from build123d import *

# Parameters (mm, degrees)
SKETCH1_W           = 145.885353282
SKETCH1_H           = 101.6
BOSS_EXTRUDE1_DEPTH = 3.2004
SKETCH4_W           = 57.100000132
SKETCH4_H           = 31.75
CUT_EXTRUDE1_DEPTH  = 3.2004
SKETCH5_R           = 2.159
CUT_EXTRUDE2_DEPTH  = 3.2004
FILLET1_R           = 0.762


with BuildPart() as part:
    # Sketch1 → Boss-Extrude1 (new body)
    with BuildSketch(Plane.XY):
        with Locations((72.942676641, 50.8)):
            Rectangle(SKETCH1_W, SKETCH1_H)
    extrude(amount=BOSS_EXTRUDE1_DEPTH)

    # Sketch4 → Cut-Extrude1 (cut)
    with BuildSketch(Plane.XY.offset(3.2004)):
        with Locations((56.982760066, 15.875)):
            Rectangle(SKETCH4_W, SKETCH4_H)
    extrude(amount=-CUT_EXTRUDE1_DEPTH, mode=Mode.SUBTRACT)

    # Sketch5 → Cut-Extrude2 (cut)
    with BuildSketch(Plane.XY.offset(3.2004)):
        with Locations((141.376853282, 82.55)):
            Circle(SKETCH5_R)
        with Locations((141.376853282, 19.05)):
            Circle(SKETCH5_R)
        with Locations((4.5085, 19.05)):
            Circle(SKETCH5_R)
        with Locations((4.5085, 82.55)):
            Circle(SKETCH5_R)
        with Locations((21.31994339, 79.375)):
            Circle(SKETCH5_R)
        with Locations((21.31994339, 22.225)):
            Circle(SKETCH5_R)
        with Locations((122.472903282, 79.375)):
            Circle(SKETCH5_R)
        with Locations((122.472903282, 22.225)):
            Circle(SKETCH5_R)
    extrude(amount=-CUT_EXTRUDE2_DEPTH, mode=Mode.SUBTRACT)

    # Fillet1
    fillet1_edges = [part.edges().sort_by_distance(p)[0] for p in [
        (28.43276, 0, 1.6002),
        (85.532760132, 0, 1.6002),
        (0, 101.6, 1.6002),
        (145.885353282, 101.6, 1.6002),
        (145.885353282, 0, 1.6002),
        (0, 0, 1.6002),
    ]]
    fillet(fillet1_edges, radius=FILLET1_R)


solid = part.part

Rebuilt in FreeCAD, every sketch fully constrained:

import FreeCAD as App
import Part
import Sketcher

V = App.Vector
Q = App.Units.Quantity


def edges_at(feature, points):
    """Names of the edges that pass closest to the given points."""
    edges = feature.Shape.Edges
    near = lambda p: min(range(len(edges)), key=lambda i: edges[i].distToShape(Part.Vertex(*p))[0])
    return sorted({f"Edge{near(p) + 1}" for p in points})

doc = App.newDocument("Part")
body = doc.addObject("PartDesign::Body", "Body")

# Sketch on XY plane
sketch1 = body.newObject("Sketcher::SketchObject", "Sketch")
sketch1.AttachmentSupport = (doc.getObject("XY_Plane"), [""])
sketch1.MapMode = "FlatFace"
sketch1.addGeometry(Part.LineSegment(V(0, 102, 0), V(0, 0, 0)), False)
sketch1.addGeometry(Part.LineSegment(V(0, 0, 0), V(146, 0, 0)), False)
sketch1.addGeometry(Part.LineSegment(V(146, 0, 0), V(146, 102, 0)), False)
sketch1.addGeometry(Part.LineSegment(V(146, 102, 0), V(0, 102, 0)), False)
sketch1.addConstraint(Sketcher.Constraint("Coincident", 0, 2, 1, 1))
sketch1.addConstraint(Sketcher.Constraint("Coincident", 1, 2, 2, 1))
sketch1.addConstraint(Sketcher.Constraint("Coincident", 2, 2, 3, 1))
sketch1.addConstraint(Sketcher.Constraint("Coincident", 3, 2, 0, 1))
sketch1.addConstraint(Sketcher.Constraint("Vertical", 0))
sketch1.addConstraint(Sketcher.Constraint("Horizontal", 1))
sketch1.addConstraint(Sketcher.Constraint("Vertical", 2))
sketch1.addConstraint(Sketcher.Constraint("Horizontal", 3))
sketch1.addConstraint(Sketcher.Constraint("Coincident", 0, 2, -1, 1))
sketch1.addConstraint(Sketcher.Constraint("DistanceY", 0, 2, 0, 1, Q("4 in")))
sketch1.addConstraint(Sketcher.Constraint("DistanceX", 1, 1, 1, 2, Q("145.885353 mm")))
pad1 = body.newObject("PartDesign::Pad", "Pad")
pad1.Profile = sketch1
pad1.Length = Q("0.126 in")

# Sketch on XY plane
sketch2 = body.newObject("Sketcher::SketchObject", "Sketch001")
sketch2.AttachmentSupport = (doc.getObject("XY_Plane"), [""])
sketch2.MapMode = "FlatFace"
sketch2.AttachmentOffset = App.Placement(V(0, 0, 0.126 * 25.4), App.Rotation())
sketch2.addGeometry(Part.LineSegment(V(28, 32, 0), V(28, 0, 0)), False)
sketch2.addGeometry(Part.LineSegment(V(28, 0, 0), V(86, 0, 0)), False)
sketch2.addGeometry(Part.LineSegment(V(86, 0, 0), V(86, 32, 0)), False)
sketch2.addGeometry(Part.LineSegment(V(86, 32, 0), V(28, 32, 0)), False)
sketch2.addConstraint(Sketcher.Constraint("Coincident", 0, 2, 1, 1))
sketch2.addConstraint(Sketcher.Constraint("Coincident", 1, 2, 2, 1))
sketch2.addConstraint(Sketcher.Constraint("Coincident", 2, 2, 3, 1))
sketch2.addConstraint(Sketcher.Constraint("Coincident", 3, 2, 0, 1))
sketch2.addConstraint(Sketcher.Constraint("Vertical", 0))
sketch2.addConstraint(Sketcher.Constraint("Horizontal", 1))
sketch2.addConstraint(Sketcher.Constraint("Vertical", 2))
sketch2.addConstraint(Sketcher.Constraint("Horizontal", 3))
sketch2.addConstraint(Sketcher.Constraint("PointOnObject", 0, 2, -1))
sketch2.addConstraint(Sketcher.Constraint("DistanceY", 0, 2, 0, 1, Q("1.25 in")))
sketch2.addConstraint(Sketcher.Constraint("DistanceX", 1, 1, 1, 2, Q("57.1 mm")))
sketch2.addConstraint(Sketcher.Constraint("DistanceX", -1, 1, 0, 2, Q("1.1194 in")))
pocket1 = body.newObject("PartDesign::Pocket", "Pocket")
pocket1.Profile = sketch2
pocket1.Length = Q("0.126 in")

# Sketch on XY plane
sketch3 = body.newObject("Sketcher::SketchObject", "Sketch002")
sketch3.AttachmentSupport = (doc.getObject("XY_Plane"), [""])
sketch3.MapMode = "FlatFace"
sketch3.AttachmentOffset = App.Placement(V(0, 0, 0.126 * 25.4), App.Rotation())
sketch3.addGeometry(Part.Circle(V(141.4, 82.5, 0), V(0, 0, 1), 2.2), False)
sketch3.addGeometry(Part.Circle(V(141.4, 19.1, 0), V(0, 0, 1), 2.2), False)
sketch3.addGeometry(Part.Circle(V(4.5, 19.1, 0), V(0, 0, 1), 2.2), False)
sketch3.addGeometry(Part.Circle(V(4.5, 82.5, 0), V(0, 0, 1), 2.2), False)
sketch3.addGeometry(Part.Circle(V(21.3, 79.4, 0), V(0, 0, 1), 2.2), False)
sketch3.addGeometry(Part.Circle(V(21.3, 22.2, 0), V(0, 0, 1), 2.2), False)
sketch3.addGeometry(Part.Circle(V(122.5, 79.4, 0), V(0, 0, 1), 2.2), False)
sketch3.addGeometry(Part.Circle(V(122.5, 22.2, 0), V(0, 0, 1), 2.2), False)
sketch3.addConstraint(Sketcher.Constraint("Equal", 0, 1))
sketch3.addConstraint(Sketcher.Constraint("Equal", 1, 2))
sketch3.addConstraint(Sketcher.Constraint("Equal", 2, 3))
sketch3.addConstraint(Sketcher.Constraint("Equal", 3, 4))
sketch3.addConstraint(Sketcher.Constraint("Equal", 4, 5))
sketch3.addConstraint(Sketcher.Constraint("Equal", 5, 6))
sketch3.addConstraint(Sketcher.Constraint("Equal", 6, 7))
sketch3.addConstraint(Sketcher.Constraint("Horizontal", 1, 3, 2, 3))
sketch3.addConstraint(Sketcher.Constraint("Horizontal", 0, 3, 3, 3))
sketch3.addConstraint(Sketcher.Constraint("Horizontal", 4, 3, 6, 3))
sketch3.addConstraint(Sketcher.Constraint("Horizontal", 5, 3, 7, 3))
sketch3.addConstraint(Sketcher.Constraint("Vertical", 0, 3, 1, 3))
sketch3.addConstraint(Sketcher.Constraint("Vertical", 2, 3, 3, 3))
sketch3.addConstraint(Sketcher.Constraint("Vertical", 4, 3, 5, 3))
sketch3.addConstraint(Sketcher.Constraint("Vertical", 6, 3, 7, 3))
sketch3.addConstraint(Sketcher.Constraint("Diameter", 0, Q("0.17 in")))
sketch3.addConstraint(Sketcher.Constraint("DistanceY", 1, 3, 0, 3, Q("2.5 in")))
sketch3.addConstraint(Sketcher.Constraint("DistanceY", -1, 1, 0, 3, Q("3.25 in")))
sketch3.addConstraint(Sketcher.Constraint("DistanceY", 5, 3, 4, 3, Q("2.25 in")))
sketch3.addConstraint(Sketcher.Constraint("DistanceY", -1, 1, 4, 3, Q("3.125 in")))
sketch3.addConstraint(Sketcher.Constraint("DistanceX", -1, 1, 2, 3, Q("0.1775 in")))
sketch3.addConstraint(Sketcher.Constraint("DistanceX", 4, 3, 6, 3, Q("3.9824 in")))
sketch3.addConstraint(Sketcher.Constraint("DistanceX", 4, 3, 0, 3, Q("120.05691 mm")))
sketch3.addConstraint(Sketcher.Constraint("DistanceX", -1, 1, 0, 3, Q("141.376853 mm")))
pocket2 = body.newObject("PartDesign::Pocket", "Pocket001")
pocket2.Profile = sketch3
pocket2.Length = Q("0.126 in")
doc.recompute()

fillet = body.newObject("PartDesign::Fillet", "Fillet")
fillet.Base = (pocket2, edges_at(pocket2, [
    (28.433, 0, 1.6),
    (85.533, 0, 1.6),
    (0, 101.6, 1.6),
    (145.885, 101.6, 1.6),
    (145.885, 0, 1.6),
    (0, 0, 1.6),
]))
fillet.Radius = Q("0.03 in")

doc.recompute()
